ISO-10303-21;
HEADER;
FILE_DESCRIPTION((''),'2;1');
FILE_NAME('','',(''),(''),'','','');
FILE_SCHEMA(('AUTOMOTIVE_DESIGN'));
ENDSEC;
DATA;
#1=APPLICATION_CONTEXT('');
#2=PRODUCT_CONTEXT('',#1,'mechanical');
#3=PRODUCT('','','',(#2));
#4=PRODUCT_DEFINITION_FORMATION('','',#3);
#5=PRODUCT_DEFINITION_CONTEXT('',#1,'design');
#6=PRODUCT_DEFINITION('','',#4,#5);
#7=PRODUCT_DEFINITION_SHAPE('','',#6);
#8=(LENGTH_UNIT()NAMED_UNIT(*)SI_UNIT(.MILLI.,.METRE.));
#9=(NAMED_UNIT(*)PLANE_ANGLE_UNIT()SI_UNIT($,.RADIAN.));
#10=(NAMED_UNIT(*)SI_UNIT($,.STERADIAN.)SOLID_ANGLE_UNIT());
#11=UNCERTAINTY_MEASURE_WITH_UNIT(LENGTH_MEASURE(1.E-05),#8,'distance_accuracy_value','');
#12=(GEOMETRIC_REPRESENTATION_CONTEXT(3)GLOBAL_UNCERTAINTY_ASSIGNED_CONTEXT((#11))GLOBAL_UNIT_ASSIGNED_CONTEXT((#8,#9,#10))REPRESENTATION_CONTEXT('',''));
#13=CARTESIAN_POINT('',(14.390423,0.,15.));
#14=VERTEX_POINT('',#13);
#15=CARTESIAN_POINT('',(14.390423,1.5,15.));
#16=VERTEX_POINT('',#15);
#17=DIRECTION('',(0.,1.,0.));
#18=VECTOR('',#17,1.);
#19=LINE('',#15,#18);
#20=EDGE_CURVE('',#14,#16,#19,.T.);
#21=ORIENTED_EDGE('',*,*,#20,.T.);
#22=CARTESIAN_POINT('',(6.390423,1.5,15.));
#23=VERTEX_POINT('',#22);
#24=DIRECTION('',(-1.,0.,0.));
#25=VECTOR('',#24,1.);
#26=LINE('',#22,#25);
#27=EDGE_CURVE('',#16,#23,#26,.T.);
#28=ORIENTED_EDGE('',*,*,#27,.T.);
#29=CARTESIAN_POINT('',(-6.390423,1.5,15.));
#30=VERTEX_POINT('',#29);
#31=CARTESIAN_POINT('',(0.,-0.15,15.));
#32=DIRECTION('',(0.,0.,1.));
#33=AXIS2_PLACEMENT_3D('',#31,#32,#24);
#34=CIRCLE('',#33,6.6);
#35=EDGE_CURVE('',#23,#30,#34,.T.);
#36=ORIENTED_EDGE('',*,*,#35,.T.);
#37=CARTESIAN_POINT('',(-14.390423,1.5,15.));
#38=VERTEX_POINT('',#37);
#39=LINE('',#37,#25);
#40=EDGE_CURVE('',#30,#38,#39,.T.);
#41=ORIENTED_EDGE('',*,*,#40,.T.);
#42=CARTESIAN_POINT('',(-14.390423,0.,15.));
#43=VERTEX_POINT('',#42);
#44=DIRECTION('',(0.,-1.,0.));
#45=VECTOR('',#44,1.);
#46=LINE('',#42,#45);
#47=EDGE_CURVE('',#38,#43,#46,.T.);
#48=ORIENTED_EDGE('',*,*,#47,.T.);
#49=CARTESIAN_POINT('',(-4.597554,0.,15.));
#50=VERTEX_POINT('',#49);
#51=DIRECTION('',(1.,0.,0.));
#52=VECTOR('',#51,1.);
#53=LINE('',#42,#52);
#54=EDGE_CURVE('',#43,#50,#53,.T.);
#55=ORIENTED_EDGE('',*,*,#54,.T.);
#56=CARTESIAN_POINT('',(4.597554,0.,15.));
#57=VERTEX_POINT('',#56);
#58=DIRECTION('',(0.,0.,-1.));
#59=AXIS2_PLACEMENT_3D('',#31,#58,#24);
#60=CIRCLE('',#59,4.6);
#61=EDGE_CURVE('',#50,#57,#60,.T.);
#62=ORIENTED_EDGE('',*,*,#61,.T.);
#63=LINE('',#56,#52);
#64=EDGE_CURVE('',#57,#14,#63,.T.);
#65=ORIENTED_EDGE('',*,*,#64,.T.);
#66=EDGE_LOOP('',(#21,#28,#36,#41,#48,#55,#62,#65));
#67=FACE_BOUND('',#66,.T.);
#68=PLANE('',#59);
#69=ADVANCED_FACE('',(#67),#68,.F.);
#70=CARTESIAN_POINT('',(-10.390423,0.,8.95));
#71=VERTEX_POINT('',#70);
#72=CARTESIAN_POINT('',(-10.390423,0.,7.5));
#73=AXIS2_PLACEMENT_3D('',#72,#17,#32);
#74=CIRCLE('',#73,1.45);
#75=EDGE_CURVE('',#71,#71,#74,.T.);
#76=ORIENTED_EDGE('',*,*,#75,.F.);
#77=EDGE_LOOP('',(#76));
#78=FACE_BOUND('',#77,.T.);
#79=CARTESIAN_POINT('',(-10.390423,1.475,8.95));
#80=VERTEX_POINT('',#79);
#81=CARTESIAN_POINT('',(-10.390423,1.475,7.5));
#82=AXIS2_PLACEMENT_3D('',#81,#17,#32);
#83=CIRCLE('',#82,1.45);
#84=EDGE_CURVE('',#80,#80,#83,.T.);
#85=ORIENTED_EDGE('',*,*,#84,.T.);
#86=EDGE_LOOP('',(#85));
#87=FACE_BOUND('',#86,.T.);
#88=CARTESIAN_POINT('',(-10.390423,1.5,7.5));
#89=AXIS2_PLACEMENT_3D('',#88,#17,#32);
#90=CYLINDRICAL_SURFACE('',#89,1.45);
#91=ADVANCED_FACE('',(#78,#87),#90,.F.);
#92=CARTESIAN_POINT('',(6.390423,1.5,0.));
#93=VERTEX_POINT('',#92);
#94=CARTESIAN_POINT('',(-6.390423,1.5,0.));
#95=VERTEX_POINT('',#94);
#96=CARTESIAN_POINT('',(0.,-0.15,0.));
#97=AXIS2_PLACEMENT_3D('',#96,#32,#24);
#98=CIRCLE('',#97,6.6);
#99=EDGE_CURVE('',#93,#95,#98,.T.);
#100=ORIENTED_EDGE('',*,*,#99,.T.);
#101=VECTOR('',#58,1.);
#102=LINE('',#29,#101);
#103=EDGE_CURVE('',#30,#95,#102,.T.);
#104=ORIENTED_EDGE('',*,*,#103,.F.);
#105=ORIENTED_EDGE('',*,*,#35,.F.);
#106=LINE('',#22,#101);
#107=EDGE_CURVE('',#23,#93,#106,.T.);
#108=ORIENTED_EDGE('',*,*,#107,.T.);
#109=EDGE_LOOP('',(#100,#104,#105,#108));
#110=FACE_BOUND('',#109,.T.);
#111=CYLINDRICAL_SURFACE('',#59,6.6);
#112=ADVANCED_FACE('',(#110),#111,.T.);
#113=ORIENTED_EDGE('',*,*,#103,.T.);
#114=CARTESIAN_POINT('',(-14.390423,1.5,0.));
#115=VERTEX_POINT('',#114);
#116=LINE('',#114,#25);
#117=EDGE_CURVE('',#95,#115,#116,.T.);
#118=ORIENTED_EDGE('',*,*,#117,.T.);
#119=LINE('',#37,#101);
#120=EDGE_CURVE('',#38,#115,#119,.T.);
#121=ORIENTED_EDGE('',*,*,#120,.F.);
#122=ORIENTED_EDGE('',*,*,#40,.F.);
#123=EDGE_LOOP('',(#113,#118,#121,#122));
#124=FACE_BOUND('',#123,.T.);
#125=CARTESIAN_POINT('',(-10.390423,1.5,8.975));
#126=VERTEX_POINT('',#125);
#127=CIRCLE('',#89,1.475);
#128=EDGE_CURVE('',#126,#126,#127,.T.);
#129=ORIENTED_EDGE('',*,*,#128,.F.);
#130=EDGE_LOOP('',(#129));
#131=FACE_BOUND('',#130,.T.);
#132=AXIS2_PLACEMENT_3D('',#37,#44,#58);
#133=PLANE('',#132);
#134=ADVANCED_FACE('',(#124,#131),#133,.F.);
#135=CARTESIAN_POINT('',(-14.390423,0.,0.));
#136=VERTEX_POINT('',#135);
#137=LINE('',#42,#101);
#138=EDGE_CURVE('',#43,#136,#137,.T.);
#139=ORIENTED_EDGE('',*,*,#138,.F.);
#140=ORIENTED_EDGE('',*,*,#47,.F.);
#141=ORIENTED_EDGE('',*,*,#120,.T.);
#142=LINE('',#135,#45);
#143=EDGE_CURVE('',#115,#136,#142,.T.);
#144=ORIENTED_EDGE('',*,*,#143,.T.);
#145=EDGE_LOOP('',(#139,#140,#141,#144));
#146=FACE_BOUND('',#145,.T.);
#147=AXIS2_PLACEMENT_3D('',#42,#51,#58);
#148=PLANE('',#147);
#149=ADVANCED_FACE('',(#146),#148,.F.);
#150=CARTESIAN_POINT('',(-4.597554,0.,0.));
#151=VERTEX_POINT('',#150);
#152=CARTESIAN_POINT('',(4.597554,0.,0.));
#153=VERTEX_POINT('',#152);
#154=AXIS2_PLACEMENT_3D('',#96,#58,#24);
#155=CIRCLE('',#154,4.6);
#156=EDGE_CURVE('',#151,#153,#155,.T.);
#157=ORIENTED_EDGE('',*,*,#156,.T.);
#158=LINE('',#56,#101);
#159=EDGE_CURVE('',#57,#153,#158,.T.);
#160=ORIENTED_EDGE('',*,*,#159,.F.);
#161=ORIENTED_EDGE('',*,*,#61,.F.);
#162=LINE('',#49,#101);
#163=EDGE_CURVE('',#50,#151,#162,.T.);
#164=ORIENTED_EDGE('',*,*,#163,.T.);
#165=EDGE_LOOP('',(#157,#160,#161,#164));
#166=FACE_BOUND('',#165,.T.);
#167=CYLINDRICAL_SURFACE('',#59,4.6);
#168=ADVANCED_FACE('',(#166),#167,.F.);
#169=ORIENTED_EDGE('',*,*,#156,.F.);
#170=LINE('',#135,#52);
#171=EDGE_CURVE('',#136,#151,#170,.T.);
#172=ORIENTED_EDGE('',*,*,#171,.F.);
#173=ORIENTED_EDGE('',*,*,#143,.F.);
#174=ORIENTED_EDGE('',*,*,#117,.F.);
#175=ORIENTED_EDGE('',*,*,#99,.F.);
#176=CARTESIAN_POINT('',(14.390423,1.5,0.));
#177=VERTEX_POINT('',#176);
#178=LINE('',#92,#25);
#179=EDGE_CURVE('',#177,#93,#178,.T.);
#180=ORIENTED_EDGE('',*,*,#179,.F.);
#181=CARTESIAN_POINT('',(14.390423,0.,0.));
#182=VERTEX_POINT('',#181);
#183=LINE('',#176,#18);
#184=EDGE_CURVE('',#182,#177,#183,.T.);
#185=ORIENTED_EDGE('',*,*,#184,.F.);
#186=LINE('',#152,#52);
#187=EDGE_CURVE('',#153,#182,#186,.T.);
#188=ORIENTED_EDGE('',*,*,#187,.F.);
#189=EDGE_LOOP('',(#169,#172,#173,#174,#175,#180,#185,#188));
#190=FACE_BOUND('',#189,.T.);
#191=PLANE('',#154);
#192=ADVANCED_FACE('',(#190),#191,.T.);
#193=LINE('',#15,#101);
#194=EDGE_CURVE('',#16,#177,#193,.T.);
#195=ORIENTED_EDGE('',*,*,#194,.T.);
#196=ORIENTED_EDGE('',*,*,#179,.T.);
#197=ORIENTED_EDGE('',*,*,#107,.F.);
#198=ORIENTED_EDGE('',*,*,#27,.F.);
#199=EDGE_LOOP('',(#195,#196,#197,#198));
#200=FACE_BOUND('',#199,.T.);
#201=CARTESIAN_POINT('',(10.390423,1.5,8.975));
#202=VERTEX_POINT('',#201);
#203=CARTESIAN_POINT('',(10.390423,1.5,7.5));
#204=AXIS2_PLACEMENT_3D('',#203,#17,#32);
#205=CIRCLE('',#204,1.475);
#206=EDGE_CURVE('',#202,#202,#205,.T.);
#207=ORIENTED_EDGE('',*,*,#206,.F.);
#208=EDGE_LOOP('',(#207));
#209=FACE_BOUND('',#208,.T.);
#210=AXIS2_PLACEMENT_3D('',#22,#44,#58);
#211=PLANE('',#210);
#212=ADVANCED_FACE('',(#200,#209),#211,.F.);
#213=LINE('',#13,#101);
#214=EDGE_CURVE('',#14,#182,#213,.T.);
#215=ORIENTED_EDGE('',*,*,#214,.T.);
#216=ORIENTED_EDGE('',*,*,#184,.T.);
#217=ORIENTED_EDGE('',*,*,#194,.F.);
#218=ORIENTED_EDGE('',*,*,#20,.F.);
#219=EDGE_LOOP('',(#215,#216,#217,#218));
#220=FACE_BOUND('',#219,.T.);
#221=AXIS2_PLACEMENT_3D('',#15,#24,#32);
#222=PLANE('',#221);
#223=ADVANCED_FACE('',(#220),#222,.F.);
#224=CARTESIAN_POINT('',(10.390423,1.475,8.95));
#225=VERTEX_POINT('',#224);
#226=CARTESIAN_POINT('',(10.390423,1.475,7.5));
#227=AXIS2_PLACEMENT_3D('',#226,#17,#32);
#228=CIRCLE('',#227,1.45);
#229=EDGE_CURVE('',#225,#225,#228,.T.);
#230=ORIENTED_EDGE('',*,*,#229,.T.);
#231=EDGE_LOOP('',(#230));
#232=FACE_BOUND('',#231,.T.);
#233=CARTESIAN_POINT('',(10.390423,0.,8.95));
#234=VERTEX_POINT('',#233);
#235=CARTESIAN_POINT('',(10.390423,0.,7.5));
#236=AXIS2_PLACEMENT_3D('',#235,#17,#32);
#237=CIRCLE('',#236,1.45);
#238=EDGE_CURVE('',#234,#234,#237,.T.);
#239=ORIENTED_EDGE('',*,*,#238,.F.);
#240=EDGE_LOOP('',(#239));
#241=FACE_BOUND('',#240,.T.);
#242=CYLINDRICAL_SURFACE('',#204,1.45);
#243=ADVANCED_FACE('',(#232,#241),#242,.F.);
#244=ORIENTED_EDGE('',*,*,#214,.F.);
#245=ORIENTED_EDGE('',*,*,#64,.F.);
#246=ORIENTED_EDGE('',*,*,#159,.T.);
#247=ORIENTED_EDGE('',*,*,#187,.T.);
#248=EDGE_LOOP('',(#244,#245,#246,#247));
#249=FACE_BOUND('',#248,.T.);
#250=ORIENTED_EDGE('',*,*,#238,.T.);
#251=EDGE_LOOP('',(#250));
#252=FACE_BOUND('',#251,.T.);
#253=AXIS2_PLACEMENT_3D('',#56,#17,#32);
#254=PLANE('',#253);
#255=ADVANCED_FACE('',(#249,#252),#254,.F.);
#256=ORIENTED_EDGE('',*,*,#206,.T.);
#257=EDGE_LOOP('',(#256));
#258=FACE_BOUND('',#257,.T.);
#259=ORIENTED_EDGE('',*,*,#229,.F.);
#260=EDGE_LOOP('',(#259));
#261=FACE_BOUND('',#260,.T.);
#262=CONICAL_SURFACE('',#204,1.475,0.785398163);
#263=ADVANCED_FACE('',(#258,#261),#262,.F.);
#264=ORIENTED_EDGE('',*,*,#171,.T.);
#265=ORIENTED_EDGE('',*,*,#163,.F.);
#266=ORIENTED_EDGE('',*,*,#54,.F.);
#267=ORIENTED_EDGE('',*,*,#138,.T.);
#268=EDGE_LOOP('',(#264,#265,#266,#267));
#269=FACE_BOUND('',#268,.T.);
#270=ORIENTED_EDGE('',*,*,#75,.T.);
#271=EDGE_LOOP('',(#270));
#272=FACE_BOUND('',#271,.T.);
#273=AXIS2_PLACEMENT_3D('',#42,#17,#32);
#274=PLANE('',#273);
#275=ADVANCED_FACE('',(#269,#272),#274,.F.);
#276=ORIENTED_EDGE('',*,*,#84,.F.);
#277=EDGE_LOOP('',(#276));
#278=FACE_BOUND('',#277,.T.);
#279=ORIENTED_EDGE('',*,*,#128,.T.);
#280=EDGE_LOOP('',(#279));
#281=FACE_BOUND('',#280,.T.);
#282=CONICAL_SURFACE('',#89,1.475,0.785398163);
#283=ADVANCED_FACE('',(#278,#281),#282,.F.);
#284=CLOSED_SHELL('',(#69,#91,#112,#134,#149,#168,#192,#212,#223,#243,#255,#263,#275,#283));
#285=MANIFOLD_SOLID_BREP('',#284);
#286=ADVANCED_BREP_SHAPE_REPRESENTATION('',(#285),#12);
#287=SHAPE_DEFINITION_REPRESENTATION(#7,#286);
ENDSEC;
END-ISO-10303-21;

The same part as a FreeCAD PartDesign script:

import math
import FreeCAD as App
import Part
import Sketcher
from FreeCAD import Vector

doc = App.newDocument("Part")
params = doc.addObject("Spreadsheet::Sheet", "Params")
for row, (alias, value) in enumerate([
    ("sketch1_radius", "4.6 mm"),
    ("sketch1_radius2", "6.6 mm"),
    ("sketch1_width", "8 mm"),
    ("sketch1_height", "1.5 mm"),
    ("pad1_length", "15 mm"),
    ("sketch2_diameter", "2.9 mm"),
    ("hole_diameter", "2.9 mm"),
    ("hole_csink_diameter", "2.95 mm"),
], start=1):
    params.set(f"A{row}", alias)
    params.set(f"B{row}", "=" + value)
    params.setAlias(f"B{row}", alias)

body = doc.addObject("PartDesign::Body", "Body")

sketch1 = body.newObject("Sketcher::SketchObject", "Sketch")
sketch1.AttachmentSupport = (doc.getObject("XY_Plane"), [""])
sketch1.MapMode = "FlatFace"
sketch1.addGeometry(Part.LineSegment(Vector(-14.4, 0, 0), Vector(-4.6, 0, 0)), False)
sketch1.addGeometry(Part.ArcOfCircle(Part.Circle(Vector(0, -0.1, 0), Vector(0, 0, 1), 4.6), math.radians(2), math.radians(178)), False)
sketch1.addGeometry(Part.LineSegment(Vector(4.6, 0, 0), Vector(14.4, 0, 0)), False)
sketch1.addGeometry(Part.LineSegment(Vector(14.4, 0, 0), Vector(14.4, 1.5, 0)), False)
sketch1.addGeometry(Part.LineSegment(Vector(14.4, 1.5, 0), Vector(6.4, 1.5, 0)), False)
sketch1.addGeometry(Part.ArcOfCircle(Part.Circle(Vector(0, -0.1, 0), Vector(0, 0, 1), 6.6), math.radians(14), math.radians(166)), False)
sketch1.addGeometry(Part.LineSegment(Vector(-6.4, 1.5, 0), Vector(-14.4, 1.5, 0)), False)
sketch1.addGeometry(Part.LineSegment(Vector(-14.4, 1.5, 0), Vector(-14.4, 0, 0)), False)
sketch1.addConstraint(Sketcher.Constraint("Coincident", 0, 2, 1, 2))
sketch1.addConstraint(Sketcher.Constraint("Coincident", 1, 1, 2, 1))
sketch1.addConstraint(Sketcher.Constraint("Coincident", 2, 2, 3, 1))
sketch1.addConstraint(Sketcher.Constraint("Coincident", 3, 2, 4, 1))
sketch1.addConstraint(Sketcher.Constraint("Coincident", 4, 2, 5, 1))
sketch1.addConstraint(Sketcher.Constraint("Coincident", 5, 2, 6, 1))
sketch1.addConstraint(Sketcher.Constraint("Coincident", 6, 2, 7, 1))
sketch1.addConstraint(Sketcher.Constraint("Coincident", 7, 2, 0, 1))
sketch1.addConstraint(Sketcher.Constraint("Horizontal", 0))
sketch1.addConstraint(Sketcher.Constraint("Horizontal", 2))
sketch1.addConstraint(Sketcher.Constraint("Vertical", 3))
sketch1.addConstraint(Sketcher.Constraint("Horizontal", 4))
sketch1.addConstraint(Sketcher.Constraint("Horizontal", 6))
sketch1.addConstraint(Sketcher.Constraint("Vertical", 7))
sketch1.addConstraint(Sketcher.Constraint("Coincident", 5, 3, 1, 3))
sketch1.addConstraint(Sketcher.Constraint("Symmetric", 0, 2, 1, 1, -1, 1))
sketch1.addConstraint(Sketcher.Constraint("Symmetric", 4, 2, 5, 2, -2))
sketch1.addConstraint(Sketcher.Constraint("Equal", 0, 2))
sketch1.addConstraint(Sketcher.Constraint("Radius", 1, 4.6))
sketch1.addConstraint(Sketcher.Constraint("Radius", 5, 6.6))
sketch1.addConstraint(Sketcher.Constraint("DistanceX", 4, 2, 4, 1, 8.0))
sketch1.addConstraint(Sketcher.Constraint("DistanceY", 3, 1, 3, 2, 1.5))
sketch1.addConstraint(Sketcher.Constraint("DistanceY", 1, 3, -1, 1, 0.15))
sketch1.setExpression("Constraints[18]", "Params.sketch1_radius")
sketch1.setExpression("Constraints[19]", "Params.sketch1_radius2")
sketch1.setExpression("Constraints[20]", "Params.sketch1_width")
sketch1.setExpression("Constraints[21]", "Params.sketch1_height")
pad1 = body.newObject("PartDesign::Pad", "Pad")
pad1.Profile = sketch1
pad1.setExpression("Length", "Params.pad1_length")

sketch2 = body.newObject("Sketcher::SketchObject", "Sketch001")
sketch2.AttachmentSupport = (doc.getObject("XZ_Plane"), [""])
sketch2.MapMode = "FlatFace"
sketch2.AttachmentOffset = App.Placement(Vector(0, 0, -1.5), App.Rotation())
sketch2.addGeometry(Part.Circle(Vector(-10.4, 7.5, 0), Vector(0, 0, 1), 1.4), False)
sketch2.addGeometry(Part.Circle(Vector(10.4, 7.5, 0), Vector(0, 0, 1), 1.4), False)
sketch2.addConstraint(Sketcher.Constraint("Equal", 0, 1))
sketch2.addConstraint(Sketcher.Constraint("Symmetric", 0, 3, 1, 3, -2))
sketch2.addConstraint(Sketcher.Constraint("Diameter", 0, 2.9))
sketch2.addConstraint(Sketcher.Constraint("DistanceY", -1, 1, 0, 3, 7.5))
sketch2.addConstraint(Sketcher.Constraint("DistanceX", 0, 3, -1, 1, 10.390423))
sketch2.setExpression("Constraints[2]", "Params.sketch2_diameter")
doc.recompute()
hole = body.newObject("PartDesign::Hole", "Hole")
hole.Profile = sketch2
hole.ThreadType = "None"
hole.setExpression("Diameter", "Params.hole_diameter")
hole.DepthType = "ThroughAll"
hole.HoleCutType = "Countersink"
hole.setExpression("HoleCutDiameter", "Params.hole_csink_diameter")
hole.HoleCutCountersinkAngle = 90
hole.Reversed = True

doc.recompute()
